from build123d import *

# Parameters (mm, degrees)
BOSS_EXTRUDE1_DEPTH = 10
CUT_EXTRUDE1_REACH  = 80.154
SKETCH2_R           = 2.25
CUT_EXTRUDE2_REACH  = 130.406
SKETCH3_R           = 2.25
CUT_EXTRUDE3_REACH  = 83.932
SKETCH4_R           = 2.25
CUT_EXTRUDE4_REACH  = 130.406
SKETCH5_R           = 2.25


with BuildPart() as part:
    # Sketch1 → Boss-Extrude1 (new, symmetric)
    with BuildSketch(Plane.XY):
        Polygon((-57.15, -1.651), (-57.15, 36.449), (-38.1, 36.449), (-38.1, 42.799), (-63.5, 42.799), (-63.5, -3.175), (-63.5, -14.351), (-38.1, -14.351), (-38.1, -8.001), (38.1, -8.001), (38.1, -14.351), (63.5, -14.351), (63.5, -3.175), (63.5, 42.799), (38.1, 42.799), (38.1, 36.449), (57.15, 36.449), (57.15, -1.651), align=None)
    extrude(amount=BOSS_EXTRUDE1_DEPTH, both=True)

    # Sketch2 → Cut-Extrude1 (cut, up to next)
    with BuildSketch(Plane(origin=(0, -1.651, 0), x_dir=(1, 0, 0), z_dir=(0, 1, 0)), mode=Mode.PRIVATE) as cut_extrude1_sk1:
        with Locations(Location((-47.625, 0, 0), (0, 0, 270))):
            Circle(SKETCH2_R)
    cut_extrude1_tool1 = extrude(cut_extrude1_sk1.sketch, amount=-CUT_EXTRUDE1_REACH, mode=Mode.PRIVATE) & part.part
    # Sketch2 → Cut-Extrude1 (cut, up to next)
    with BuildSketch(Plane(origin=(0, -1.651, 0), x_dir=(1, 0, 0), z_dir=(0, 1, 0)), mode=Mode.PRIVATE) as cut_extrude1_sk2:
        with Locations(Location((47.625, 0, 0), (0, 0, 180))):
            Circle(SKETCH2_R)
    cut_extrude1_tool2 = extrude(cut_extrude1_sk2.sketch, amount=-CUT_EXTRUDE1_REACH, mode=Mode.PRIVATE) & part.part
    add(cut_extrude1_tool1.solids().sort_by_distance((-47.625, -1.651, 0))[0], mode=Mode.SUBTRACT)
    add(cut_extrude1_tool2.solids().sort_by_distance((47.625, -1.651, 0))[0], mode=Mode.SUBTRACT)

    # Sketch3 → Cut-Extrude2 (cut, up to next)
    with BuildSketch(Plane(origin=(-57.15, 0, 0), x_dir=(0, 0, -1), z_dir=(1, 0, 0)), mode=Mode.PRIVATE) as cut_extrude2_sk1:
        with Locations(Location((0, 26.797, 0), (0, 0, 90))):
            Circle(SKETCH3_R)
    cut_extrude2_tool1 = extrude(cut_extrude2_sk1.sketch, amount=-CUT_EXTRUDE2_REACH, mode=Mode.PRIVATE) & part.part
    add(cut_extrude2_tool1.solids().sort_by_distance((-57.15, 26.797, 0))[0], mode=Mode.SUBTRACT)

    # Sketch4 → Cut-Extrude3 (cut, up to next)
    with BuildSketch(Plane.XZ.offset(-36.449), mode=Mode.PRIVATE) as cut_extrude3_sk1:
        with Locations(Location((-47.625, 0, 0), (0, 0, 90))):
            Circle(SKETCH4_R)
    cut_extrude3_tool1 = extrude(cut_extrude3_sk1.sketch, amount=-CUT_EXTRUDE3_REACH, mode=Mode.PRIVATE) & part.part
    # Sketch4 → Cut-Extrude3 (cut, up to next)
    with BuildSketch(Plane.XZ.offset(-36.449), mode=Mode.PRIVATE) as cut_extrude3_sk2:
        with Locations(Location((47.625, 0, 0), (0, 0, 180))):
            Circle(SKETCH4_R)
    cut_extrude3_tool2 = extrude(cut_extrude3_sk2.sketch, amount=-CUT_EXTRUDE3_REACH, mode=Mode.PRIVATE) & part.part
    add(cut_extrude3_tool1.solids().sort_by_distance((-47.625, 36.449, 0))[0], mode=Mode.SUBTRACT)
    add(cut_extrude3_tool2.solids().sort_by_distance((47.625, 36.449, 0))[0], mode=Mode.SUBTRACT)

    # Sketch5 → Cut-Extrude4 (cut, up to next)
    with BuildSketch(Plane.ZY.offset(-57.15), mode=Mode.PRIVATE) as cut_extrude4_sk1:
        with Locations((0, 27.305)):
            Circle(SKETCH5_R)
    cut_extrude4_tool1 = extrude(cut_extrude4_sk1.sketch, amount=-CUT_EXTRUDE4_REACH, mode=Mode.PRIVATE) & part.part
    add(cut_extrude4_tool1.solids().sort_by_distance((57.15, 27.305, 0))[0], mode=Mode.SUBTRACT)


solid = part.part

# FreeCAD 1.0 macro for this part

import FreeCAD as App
import Part
import Sketcher
from FreeCAD import Vector
Q = App.Units.Quantity


def add_polygon(sketch, points):
    """Adds a closed chain of lines whose ends are joined by coincident constraints."""
    first, n = sketch.GeometryCount, len(points)
    for a, b in zip(points, points[1:] + points[:1]):
        sketch.addGeometry(Part.LineSegment(App.Vector(*a, 0), App.Vector(*b, 0)), False)
    for i in range(n):
        sketch.addConstraint(Sketcher.Constraint("Coincident", first + i, 2, first + (i + 1) % n, 1))

doc = App.newDocument("Part")
body = doc.addObject("PartDesign::Body", "Body")

# Sketch on XY plane
sketch1 = doc.addObject("Sketcher::SketchObject", "Sketch")
body.addObject(sketch1)
sketch1.AttachmentSupport = (doc.XY_Plane, [""])
sketch1.MapMode = "FlatFace"
add_polygon(sketch1, [(-57, -2), (-57, 36), (-38, 36), (-38, 43), (-64, 43), (-64, -14), (-38, -14), (-38, -8), (38, -8), (38, -14), (64, -14), (64, 43), (38, 43), (38, 36), (57, 36), (57, -2)])  # lines 0-15
sketch1.addConstraint([
    Sketcher.Constraint("Vertical", 0),
    Sketcher.Constraint("Horizontal", 1),
    Sketcher.Constraint("Vertical", 2),
    Sketcher.Constraint("Horizontal", 3),
    Sketcher.Constraint("Vertical", 4),
    Sketcher.Constraint("Horizontal", 5),
    Sketcher.Constraint("Vertical", 6),
    Sketcher.Constraint("Horizontal", 7),
    Sketcher.Constraint("Vertical", 8),
    Sketcher.Constraint("Horizontal", 9),
    Sketcher.Constraint("Vertical", 10),
    Sketcher.Constraint("Horizontal", 11),
    Sketcher.Constraint("Vertical", 12),
    Sketcher.Constraint("Horizontal", 13),
    Sketcher.Constraint("Vertical", 14),
    Sketcher.Constraint("Horizontal", 15),
    Sketcher.Constraint("Symmetric", 5, 2, 8, 2, -2),
    Sketcher.Constraint("Symmetric", 3, 2, 10, 2, -2),
    Sketcher.Constraint("Symmetric", 1, 2, 12, 2, -2),
    Sketcher.Constraint("Vertical", 2, 2, 5, 2),
    Sketcher.Constraint("Equal", 1, 13),
    Sketcher.Constraint("Equal", 2, 6),
    Sketcher.Constraint("DistanceX", 3, 2, 3, 1, Q("1 in")),
    Sketcher.Constraint("DistanceX", 7, 1, 7, 2, Q("3 in")),
    Sketcher.Constraint("DistanceX", 15, 2, 15, 1, Q("4.5 in")),
    Sketcher.Constraint("DistanceY", 0, 1, 0, 2, Q("1.5 in")),
    Sketcher.Constraint("DistanceY", 4, 2, 0, 2, Q("2 in")),
    Sketcher.Constraint("DistanceY", 2, 1, 2, 2, Q("0.25 in")),
    Sketcher.Constraint("DistanceY", -1, 1, 0, 2, Q("1.435 in")),
])
pad1 = doc.addObject("PartDesign::Pad", "Pad")
body.addObject(pad1)
pad1.Profile = sketch1
pad1.Length = 20
pad1.Midplane = True

# Sketch on XZ plane
sketch2 = doc.addObject("Sketcher::SketchObject", "Sketch001")
body.addObject(sketch2)
sketch2.AttachmentSupport = (doc.XZ_Plane, [""])
sketch2.MapMode = "FlatFace"
sketch2.AttachmentOffset = App.Placement(Vector(0, 0, 0.065 * 25.4), App.Rotation())
sketch2.addGeometry(Part.Circle(Vector(-47.6, 0, 0), Vector(0, 0, 1), 2.2), False)
sketch2.addConstraint([
    Sketcher.Constraint("PointOnObject", 0, 3, -1),
    Sketcher.Constraint("Diameter", 0, Q("4.5 mm")),
    Sketcher.Constraint("DistanceX", 0, 3, -1, 1, Q("1.875 in")),
])
pocket1 = doc.addObject("PartDesign::Pocket", "Pocket")
body.addObject(pocket1)
pocket1.Profile = sketch2
pocket1.Type = "UpToFirst"
pocket1.Reversed = True

# Sketch on XZ plane
sketch3 = doc.addObject("Sketcher::SketchObject", "Sketch002")
body.addObject(sketch3)
sketch3.AttachmentSupport = (doc.XZ_Plane, [""])
sketch3.MapMode = "FlatFace"
sketch3.AttachmentOffset = App.Placement(Vector(0, 0, 0.065 * 25.4), App.Rotation())
sketch3.addGeometry(Part.Circle(Vector(47.6, 0, 0), Vector(0, 0, 1), 2.2), False)
sketch3.addConstraint([
    Sketcher.Constraint("PointOnObject", 0, 3, -1),
    Sketcher.Constraint("Diameter", 0, Q("4.5 mm")),
    Sketcher.Constraint("DistanceX", -1, 1, 0, 3, Q("1.875 in")),
])
pocket2 = doc.addObject("PartDesign::Pocket", "Pocket001")
body.addObject(pocket2)
pocket2.Profile = sketch3
pocket2.Type = "UpToFirst"
pocket2.Reversed = True

# Sketch on YZ plane
sketch4 = doc.addObject("Sketcher::SketchObject", "Sketch003")
body.addObject(sketch4)
sketch4.AttachmentSupport = (doc.YZ_Plane, [""])
sketch4.MapMode = "FlatFace"
sketch4.AttachmentOffset = App.Placement(Vector(0, 0, -2.25 * 25.4), App.Rotation())
sketch4.addGeometry(Part.Circle(Vector(26.8, 0, 0), Vector(0, 0, 1), 2.2), False)
sketch4.addConstraint([
    Sketcher.Constraint("PointOnObject", 0, 3, -1),
    Sketcher.Constraint("Diameter", 0, Q("4.5 mm")),
    Sketcher.Constraint("DistanceX", -1, 1, 0, 3, Q("1.055 in")),
])
pocket3 = doc.addObject("PartDesign::Pocket", "Pocket002")
body.addObject(pocket3)
pocket3.Profile = sketch4
pocket3.Type = "UpToFirst"

# Sketch on XZ plane
sketch5 = doc.addObject("Sketcher::SketchObject", "Sketch004")
body.addObject(sketch5)
sketch5.AttachmentSupport = (doc.XZ_Plane, [""])
sketch5.MapMode = "FlatFace"
sketch5.AttachmentOffset = App.Placement(Vector(0, 0, -1.435 * 25.4), App.Rotation())
sketch5.addGeometry(Part.Circle(Vector(-47.6, 0, 0), Vector(0, 0, 1), 2.2), False)
sketch5.addConstraint([
    Sketcher.Constraint("PointOnObject", 0, 3, -1),
    Sketcher.Constraint("Diameter", 0, Q("4.5 mm")),
    Sketcher.Constraint("DistanceX", 0, 3, -1, 1, Q("1.875 in")),
])
pocket4 = doc.addObject("PartDesign::Pocket", "Pocket003")
body.addObject(pocket4)
pocket4.Profile = sketch5
pocket4.Type = "UpToFirst"

# Sketch on XZ plane
sketch6 = doc.addObject("Sketcher::SketchObject", "Sketch005")
body.addObject(sketch6)
sketch6.AttachmentSupport = (doc.XZ_Plane, [""])
sketch6.MapMode = "FlatFace"
sketch6.AttachmentOffset = App.Placement(Vector(0, 0, -1.435 * 25.4), App.Rotation())
sketch6.addGeometry(Part.Circle(Vector(47.6, 0, 0), Vector(0, 0, 1), 2.2), False)
sketch6.addConstraint([
    Sketcher.Constraint("PointOnObject", 0, 3, -1),
    Sketcher.Constraint("Diameter", 0, Q("4.5 mm")),
    Sketcher.Constraint("DistanceX", -1, 1, 0, 3, Q("1.875 in")),
])
pocket5 = doc.addObject("PartDesign::Pocket", "Pocket004")
body.addObject(pocket5)
pocket5.Profile = sketch6
pocket5.Type = "UpToFirst"

# Sketch on YZ plane
sketch7 = doc.addObject("Sketcher::SketchObject", "Sketch006")
body.addObject(sketch7)
sketch7.AttachmentSupport = (doc.YZ_Plane, [""])
sketch7.MapMode = "FlatFace"
sketch7.AttachmentOffset = App.Placement(Vector(0, 0, 2.25 * 25.4), App.Rotation())
sketch7.addGeometry(Part.Circle(Vector(27.3, 0, 0), Vector(0, 0, 1), 2.2), False)
sketch7.addConstraint([
    Sketcher.Constraint("PointOnObject", 0, 3, -1),
    Sketcher.Constraint("Diameter", 0, Q("4.5 mm")),
    Sketcher.Constraint("DistanceX", -1, 1, 0, 3, Q("1.075 in")),
])
pocket6 = doc.addObject("PartDesign::Pocket", "Pocket005")
body.addObject(pocket6)
pocket6.Profile = sketch7
pocket6.Type = "UpToFirst"
pocket6.Reversed = True

doc.recompute()
